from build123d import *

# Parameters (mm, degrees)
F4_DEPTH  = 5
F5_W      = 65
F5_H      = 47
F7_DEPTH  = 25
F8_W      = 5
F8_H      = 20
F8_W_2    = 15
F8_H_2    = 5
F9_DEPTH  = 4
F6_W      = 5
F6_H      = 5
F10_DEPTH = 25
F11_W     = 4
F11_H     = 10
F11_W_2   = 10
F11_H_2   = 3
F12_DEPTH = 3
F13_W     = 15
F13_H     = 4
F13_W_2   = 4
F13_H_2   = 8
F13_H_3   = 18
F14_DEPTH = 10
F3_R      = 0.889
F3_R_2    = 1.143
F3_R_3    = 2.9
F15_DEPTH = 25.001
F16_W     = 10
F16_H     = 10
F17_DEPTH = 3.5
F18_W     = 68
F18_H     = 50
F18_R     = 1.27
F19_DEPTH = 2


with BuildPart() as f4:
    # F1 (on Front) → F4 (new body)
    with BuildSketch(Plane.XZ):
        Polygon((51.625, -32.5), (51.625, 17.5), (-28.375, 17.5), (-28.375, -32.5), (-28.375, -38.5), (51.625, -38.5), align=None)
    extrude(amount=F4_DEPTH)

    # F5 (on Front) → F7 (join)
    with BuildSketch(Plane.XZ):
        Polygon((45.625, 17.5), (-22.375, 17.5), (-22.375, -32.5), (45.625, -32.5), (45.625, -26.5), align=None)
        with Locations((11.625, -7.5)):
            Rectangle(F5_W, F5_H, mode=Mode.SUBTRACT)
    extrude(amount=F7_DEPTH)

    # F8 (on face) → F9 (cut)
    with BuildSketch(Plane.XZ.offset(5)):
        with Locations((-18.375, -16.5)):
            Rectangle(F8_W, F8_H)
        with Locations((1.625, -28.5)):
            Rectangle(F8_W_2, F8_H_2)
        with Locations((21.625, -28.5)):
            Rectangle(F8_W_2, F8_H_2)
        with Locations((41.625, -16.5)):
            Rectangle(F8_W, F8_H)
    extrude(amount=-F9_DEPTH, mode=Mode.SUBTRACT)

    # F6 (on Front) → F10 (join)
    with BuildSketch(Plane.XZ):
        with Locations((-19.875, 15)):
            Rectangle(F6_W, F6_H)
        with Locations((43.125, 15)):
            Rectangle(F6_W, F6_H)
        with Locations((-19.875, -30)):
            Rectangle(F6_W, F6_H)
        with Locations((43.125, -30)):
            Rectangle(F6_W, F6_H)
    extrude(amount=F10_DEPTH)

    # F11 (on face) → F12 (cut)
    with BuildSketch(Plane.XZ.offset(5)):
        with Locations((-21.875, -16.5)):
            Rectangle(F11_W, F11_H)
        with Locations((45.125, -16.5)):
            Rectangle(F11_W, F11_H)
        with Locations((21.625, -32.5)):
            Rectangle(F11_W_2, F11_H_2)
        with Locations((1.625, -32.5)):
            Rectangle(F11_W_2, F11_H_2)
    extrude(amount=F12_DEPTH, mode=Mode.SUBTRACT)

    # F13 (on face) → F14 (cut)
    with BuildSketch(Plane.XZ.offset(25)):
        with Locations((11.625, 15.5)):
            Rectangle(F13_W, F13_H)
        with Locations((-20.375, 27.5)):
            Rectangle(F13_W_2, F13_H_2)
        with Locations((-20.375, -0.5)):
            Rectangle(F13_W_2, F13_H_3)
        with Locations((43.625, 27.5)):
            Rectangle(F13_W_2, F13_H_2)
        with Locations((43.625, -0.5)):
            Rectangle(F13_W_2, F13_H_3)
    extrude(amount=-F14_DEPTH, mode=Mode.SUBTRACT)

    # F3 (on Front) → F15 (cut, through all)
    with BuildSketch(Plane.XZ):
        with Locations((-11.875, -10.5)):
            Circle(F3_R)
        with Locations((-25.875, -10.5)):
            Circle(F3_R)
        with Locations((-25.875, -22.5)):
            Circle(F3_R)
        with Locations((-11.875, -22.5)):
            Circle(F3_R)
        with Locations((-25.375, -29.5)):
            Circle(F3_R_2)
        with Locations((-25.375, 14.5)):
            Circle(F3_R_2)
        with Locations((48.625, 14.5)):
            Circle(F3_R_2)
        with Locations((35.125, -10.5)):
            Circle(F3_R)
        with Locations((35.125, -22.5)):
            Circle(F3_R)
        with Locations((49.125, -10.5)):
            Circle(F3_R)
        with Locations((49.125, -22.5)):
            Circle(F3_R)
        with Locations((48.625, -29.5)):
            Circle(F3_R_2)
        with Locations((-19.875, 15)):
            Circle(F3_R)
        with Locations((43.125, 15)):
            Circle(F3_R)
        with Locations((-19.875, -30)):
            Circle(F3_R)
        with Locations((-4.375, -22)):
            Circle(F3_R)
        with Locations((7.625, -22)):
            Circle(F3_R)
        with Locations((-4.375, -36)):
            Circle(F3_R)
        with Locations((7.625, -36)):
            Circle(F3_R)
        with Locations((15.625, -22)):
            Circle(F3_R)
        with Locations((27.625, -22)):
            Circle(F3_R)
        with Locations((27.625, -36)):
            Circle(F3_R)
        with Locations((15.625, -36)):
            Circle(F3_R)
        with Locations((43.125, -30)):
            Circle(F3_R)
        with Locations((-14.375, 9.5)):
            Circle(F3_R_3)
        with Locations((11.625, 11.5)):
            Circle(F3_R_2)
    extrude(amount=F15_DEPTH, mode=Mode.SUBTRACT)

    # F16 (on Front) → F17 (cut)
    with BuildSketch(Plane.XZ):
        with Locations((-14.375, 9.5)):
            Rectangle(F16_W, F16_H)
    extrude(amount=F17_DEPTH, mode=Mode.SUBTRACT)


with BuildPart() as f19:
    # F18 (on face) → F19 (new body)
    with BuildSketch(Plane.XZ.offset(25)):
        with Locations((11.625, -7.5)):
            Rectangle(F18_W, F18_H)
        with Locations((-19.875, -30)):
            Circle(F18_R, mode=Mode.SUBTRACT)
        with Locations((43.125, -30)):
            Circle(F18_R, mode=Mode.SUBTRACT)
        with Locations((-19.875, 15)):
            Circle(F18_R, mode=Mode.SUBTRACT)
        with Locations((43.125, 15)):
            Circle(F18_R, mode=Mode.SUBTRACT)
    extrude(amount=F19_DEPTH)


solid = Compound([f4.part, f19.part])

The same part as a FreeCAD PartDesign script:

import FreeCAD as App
import Part
import Sketcher
from FreeCAD import Vector
Q = App.Units.Quantity

doc = App.newDocument("Part")
body = doc.addObject("PartDesign::Body", "Body")

# Sketch on XZ plane
sketch1 = body.newObject("Sketcher::SketchObject", "Sketch")
sketch1.AttachmentSupport = (doc.getObject("XZ_Plane"), [""])
sketch1.MapMode = "FlatFace"
sketch1.addGeometry(Part.LineSegment(Vector(52, 18, 0), Vector(-28, 18, 0)), False)
sketch1.addGeometry(Part.LineSegment(Vector(-28, 18, 0), Vector(-28, -38, 0)), False)
sketch1.addGeometry(Part.LineSegment(Vector(-28, -38, 0), Vector(52, -38, 0)), False)
sketch1.addGeometry(Part.LineSegment(Vector(52, -38, 0), Vector(52, 18, 0)), False)
sketch1.addConstraint(Sketcher.Constraint("Coincident", 0, 2, 1, 1))
sketch1.addConstraint(Sketcher.Constraint("Coincident", 1, 2, 2, 1))
sketch1.addConstraint(Sketcher.Constraint("Coincident", 2, 2, 3, 1))
sketch1.addConstraint(Sketcher.Constraint("Coincident", 3, 2, 0, 1))
sketch1.addConstraint(Sketcher.Constraint("Horizontal", 0))
sketch1.addConstraint(Sketcher.Constraint("Vertical", 1))
sketch1.addConstraint(Sketcher.Constraint("Horizontal", 2))
sketch1.addConstraint(Sketcher.Constraint("Vertical", 3))
sketch1.addConstraint(Sketcher.Constraint("DistanceX", 0, 2, 0, 1, Q("80 mm")))
sketch1.addConstraint(Sketcher.Constraint("DistanceY", 1, 2, 1, 1, Q("56 mm")))
sketch1.addConstraint(Sketcher.Constraint("DistanceY", -1, 1, 0, 2, Q("17.5 mm")))
sketch1.addConstraint(Sketcher.Constraint("DistanceX", 0, 2, -1, 1, Q("28.375 mm")))
pad1 = body.newObject("PartDesign::Pad", "Pad")
pad1.Profile = sketch1
pad1.Length = 5

# Sketch on XZ plane
sketch2 = body.newObject("Sketcher::SketchObject", "Sketch001")
sketch2.AttachmentSupport = (doc.getObject("XZ_Plane"), [""])
sketch2.MapMode = "FlatFace"
sketch2.addGeometry(Part.LineSegment(Vector(46, 18, 0), Vector(-22, 18, 0)), False)
sketch2.addGeometry(Part.LineSegment(Vector(-22, 18, 0), Vector(-22, -32, 0)), False)
sketch2.addGeometry(Part.LineSegment(Vector(-22, -32, 0), Vector(46, -32, 0)), False)
sketch2.addGeometry(Part.LineSegment(Vector(46, -32, 0), Vector(46, 18, 0)), False)
sketch2.addGeometry(Part.LineSegment(Vector(44, -31, 0), Vector(-21, -31, 0)), False)
sketch2.addGeometry(Part.LineSegment(Vector(-21, -31, 0), Vector(-21, 16, 0)), False)
sketch2.addGeometry(Part.LineSegment(Vector(-21, 16, 0), Vector(44, 16, 0)), False)
sketch2.addGeometry(Part.LineSegment(Vector(44, 16, 0), Vector(44, -31, 0)), False)
sketch2.addConstraint(Sketcher.Constraint("Coincident", 0, 2, 1, 1))
sketch2.addConstraint(Sketcher.Constraint("Coincident", 1, 2, 2, 1))
sketch2.addConstraint(Sketcher.Constraint("Coincident", 2, 2, 3, 1))
sketch2.addConstraint(Sketcher.Constraint("Coincident", 3, 2, 0, 1))
sketch2.addConstraint(Sketcher.Constraint("Coincident", 4, 2, 5, 1))
sketch2.addConstraint(Sketcher.Constraint("Coincident", 5, 2, 6, 1))
sketch2.addConstraint(Sketcher.Constraint("Coincident", 6, 2, 7, 1))
sketch2.addConstraint(Sketcher.Constraint("Coincident", 7, 2, 4, 1))
sketch2.addConstraint(Sketcher.Constraint("Horizontal", 0))
sketch2.addConstraint(Sketcher.Constraint("Vertical", 1))
sketch2.addConstraint(Sketcher.Constraint("Horizontal", 2))
sketch2.addConstraint(Sketcher.Constraint("Vertical", 3))
sketch2.addConstraint(Sketcher.Constraint("Horizontal", 4))
sketch2.addConstraint(Sketcher.Constraint("Vertical", 5))
sketch2.addConstraint(Sketcher.Constraint("Horizontal", 6))
sketch2.addConstraint(Sketcher.Constraint("Vertical", 7))
sketch2.addConstraint(Sketcher.Constraint("DistanceX", 0, 2, 0, 1, Q("68 mm")))
sketch2.addConstraint(Sketcher.Constraint("DistanceX", 4, 2, 4, 1, Q("65 mm")))
sketch2.addConstraint(Sketcher.Constraint("DistanceY", 1, 2, 1, 1, Q("50 mm")))
sketch2.addConstraint(Sketcher.Constraint("DistanceY", 5, 1, 5, 2, Q("47 mm")))
sketch2.addConstraint(Sketcher.Constraint("DistanceY", 4, 2, -1, 1, Q("31 mm")))
sketch2.addConstraint(Sketcher.Constraint("DistanceY", -1, 1, 0, 2, Q("17.5 mm")))
sketch2.addConstraint(Sketcher.Constraint("DistanceX", 1, 2, 4, 2, Q("1.5 mm")))
sketch2.addConstraint(Sketcher.Constraint("DistanceX", 0, 2, -1, 1, Q("22.375 mm")))
pad2 = body.newObject("PartDesign::Pad", "Pad001")
pad2.Profile = sketch2
pad2.Length = 25

# Sketch on XZ plane
sketch3 = body.newObject("Sketcher::SketchObject", "Sketch002")
sketch3.AttachmentSupport = (doc.getObject("XZ_Plane"), [""])
sketch3.MapMode = "FlatFace"
sketch3.AttachmentOffset = App.Placement(Vector(0, 0, 5), App.Rotation())
sketch3.addGeometry(Part.LineSegment(Vector(-21, -6, 0), Vector(-21, -26, 0)), False)
sketch3.addGeometry(Part.LineSegment(Vector(-21, -26, 0), Vector(-16, -26, 0)), False)
sketch3.addGeometry(Part.LineSegment(Vector(-16, -26, 0), Vector(-16, -6, 0)), False)
sketch3.addGeometry(Part.LineSegment(Vector(-16, -6, 0), Vector(-21, -6, 0)), False)
sketch3.addGeometry(Part.LineSegment(Vector(-6, -26, 0), Vector(-6, -31, 0)), False)
sketch3.addGeometry(Part.LineSegment(Vector(-6, -31, 0), Vector(9, -31, 0)), False)
sketch3.addGeometry(Part.LineSegment(Vector(9, -31, 0), Vector(9, -26, 0)), False)
sketch3.addGeometry(Part.LineSegment(Vector(9, -26, 0), Vector(-6, -26, 0)), False)
sketch3.addGeometry(Part.LineSegment(Vector(14, -26, 0), Vector(14, -31, 0)), False)
sketch3.addGeometry(Part.LineSegment(Vector(14, -31, 0), Vector(29, -31, 0)), False)
sketch3.addGeometry(Part.LineSegment(Vector(29, -31, 0), Vector(29, -26, 0)), False)
sketch3.addGeometry(Part.LineSegment(Vector(29, -26, 0), Vector(14, -26, 0)), False)
sketch3.addGeometry(Part.LineSegment(Vector(39, -6, 0), Vector(39, -26, 0)), False)
sketch3.addGeometry(Part.LineSegment(Vector(39, -26, 0), Vector(44, -26, 0)), False)
sketch3.addGeometry(Part.LineSegment(Vector(44, -26, 0), Vector(44, -6, 0)), False)
sketch3.addGeometry(Part.LineSegment(Vector(44, -6, 0), Vector(39, -6, 0)), False)
sketch3.addConstraint(Sketcher.Constraint("Coincident", 0, 2, 1, 1))
sketch3.addConstraint(Sketcher.Constraint("Coincident", 1, 2, 2, 1))
sketch3.addConstraint(Sketcher.Constraint("Coincident", 2, 2, 3, 1))
sketch3.addConstraint(Sketcher.Constraint("Coincident", 3, 2, 0, 1))
sketch3.addConstraint(Sketcher.Constraint("Coincident", 4, 2, 5, 1))
sketch3.addConstraint(Sketcher.Constraint("Coincident", 5, 2, 6, 1))
sketch3.addConstraint(Sketcher.Constraint("Coincident", 6, 2, 7, 1))
sketch3.addConstraint(Sketcher.Constraint("Coincident", 7, 2, 4, 1))
sketch3.addConstraint(Sketcher.Constraint("Coincident", 8, 2, 9, 1))
sketch3.addConstraint(Sketcher.Constraint("Coincident", 9, 2, 10, 1))
sketch3.addConstraint(Sketcher.Constraint("Coincident", 10, 2, 11, 1))
sketch3.addConstraint(Sketcher.Constraint("Coincident", 11, 2, 8, 1))
sketch3.addConstraint(Sketcher.Constraint("Coincident", 12, 2, 13, 1))
sketch3.addConstraint(Sketcher.Constraint("Coincident", 13, 2, 14, 1))
sketch3.addConstraint(Sketcher.Constraint("Coincident", 14, 2, 15, 1))
sketch3.addConstraint(Sketcher.Constraint("Coincident", 15, 2, 12, 1))
sketch3.addConstraint(Sketcher.Constraint("Vertical", 0))
sketch3.addConstraint(Sketcher.Constraint("Horizontal", 1))
sketch3.addConstraint(Sketcher.Constraint("Vertical", 2))
sketch3.addConstraint(Sketcher.Constraint("Horizontal", 3))
sketch3.addConstraint(Sketcher.Constraint("Vertical", 4))
sketch3.addConstraint(Sketcher.Constraint("Horizontal", 5))
sketch3.addConstraint(Sketcher.Constraint("Vertical", 6))
sketch3.addConstraint(Sketcher.Constraint("Horizontal", 7))
sketch3.addConstraint(Sketcher.Constraint("Vertical", 8))
sketch3.addConstraint(Sketcher.Constraint("Horizontal", 9))
sketch3.addConstraint(Sketcher.Constraint("Vertical", 10))
sketch3.addConstraint(Sketcher.Constraint("Horizontal", 11))
sketch3.addConstraint(Sketcher.Constraint("Vertical", 12))
sketch3.addConstraint(Sketcher.Constraint("Horizontal", 13))
sketch3.addConstraint(Sketcher.Constraint("Vertical", 14))
sketch3.addConstraint(Sketcher.Constraint("Horizontal", 15))
sketch3.addConstraint(Sketcher.Constraint("Horizontal", 5, 2, 8, 2))
sketch3.addConstraint(Sketcher.Constraint("Horizontal", 7, 2, 10, 2))
sketch3.addConstraint(Sketcher.Constraint("Horizontal", 1, 2, 12, 2))
sketch3.addConstraint(Sketcher.Constraint("Horizontal", 3, 2, 14, 2))
sketch3.addConstraint(Sketcher.Constraint("Equal", 7, 9))
sketch3.addConstraint(Sketcher.Constraint("Equal", 3, 13))
sketch3.addConstraint(Sketcher.Constraint("Equal", 15, 4))
sketch3.addConstraint(Sketcher.Constraint("DistanceX", 1, 1, 1, 2, Q("5 mm")))
sketch3.addConstraint(Sketcher.Constraint("DistanceX", 5, 1, 5, 2, Q("15 mm")))
sketch3.addConstraint(Sketcher.Constraint("DistanceY", 0, 2, 0, 1, Q("20 mm")))
sketch3.addConstraint(Sketcher.Constraint("DistanceY", 4, 2, -1, 1, Q("31 mm")))
sketch3.addConstraint(Sketcher.Constraint("DistanceX", 1, 2, 4, 2, Q("10 mm")))
sketch3.addConstraint(Sketcher.Constraint("DistanceX", 5, 2, 8, 2, Q("5 mm")))
sketch3.addConstraint(Sketcher.Constraint("DistanceX", 10, 2, 12, 2, Q("10 mm")))
sketch3.addConstraint(Sketcher.Constraint("DistanceY", 0, 2, -1, 1, Q("26.5 mm")))
sketch3.addConstraint(Sketcher.Constraint("DistanceX", 0, 2, -1, 1, Q("20.875 mm")))
pocket1 = body.newObject("PartDesign::Pocket", "Pocket")
pocket1.Profile = sketch3
pocket1.Length = 4

# Sketch on XZ plane
sketch4 = body.newObject("Sketcher::SketchObject", "Sketch003")
sketch4.AttachmentSupport = (doc.getObject("XZ_Plane"), [""])
sketch4.MapMode = "FlatFace"
sketch4.addGeometry(Part.LineSegment(Vector(-22, 18, 0), Vector(-22, 12, 0)), False)
sketch4.addGeometry(Part.LineSegment(Vector(-22, 12, 0), Vector(-17, 12, 0)), False)
sketch4.addGeometry(Part.LineSegment(Vector(-17, 12, 0), Vector(-17, 18, 0)), False)
sketch4.addGeometry(Part.LineSegment(Vector(-17, 18, 0), Vector(-22, 18, 0)), False)
sketch4.addGeometry(Part.LineSegment(Vector(41, 18, 0), Vector(41, 12, 0)), False)
sketch4.addGeometry(Part.LineSegment(Vector(41, 12, 0), Vector(46, 12, 0)), False)
sketch4.addGeometry(Part.LineSegment(Vector(46, 12, 0), Vector(46, 18, 0)), False)
sketch4.addGeometry(Part.LineSegment(Vector(46, 18, 0), Vector(41, 18, 0)), False)
sketch4.addGeometry(Part.LineSegment(Vector(-22, -28, 0), Vector(-22, -32, 0)), False)
sketch4.addGeometry(Part.LineSegment(Vector(-22, -32, 0), Vector(-17, -32, 0)), False)
sketch4.addGeometry(Part.LineSegment(Vector(-17, -32, 0), Vector(-17, -28, 0)), False)
sketch4.addGeometry(Part.LineSegment(Vector(-17, -28, 0), Vector(-22, -28, 0)), False)
sketch4.addGeometry(Part.LineSegment(Vector(41, -28, 0), Vector(41, -32, 0)), False)
sketch4.addGeometry(Part.LineSegment(Vector(41, -32, 0), Vector(46, -32, 0)), False)
sketch4.addGeometry(Part.LineSegment(Vector(46, -32, 0), Vector(46, -28, 0)), False)
sketch4.addGeometry(Part.LineSegment(Vector(46, -28, 0), Vector(41, -28, 0)), False)
sketch4.addConstraint(Sketcher.Constraint("Coincident", 0, 2, 1, 1))
sketch4.addConstraint(Sketcher.Constraint("Coincident", 1, 2, 2, 1))
sketch4.addConstraint(Sketcher.Constraint("Coincident", 2, 2, 3, 1))
sketch4.addConstraint(Sketcher.Constraint("Coincident", 3, 2, 0, 1))
sketch4.addConstraint(Sketcher.Constraint("Coincident", 4, 2, 5, 1))
sketch4.addConstraint(Sketcher.Constraint("Coincident", 5, 2, 6, 1))
sketch4.addConstraint(Sketcher.Constraint("Coincident", 6, 2, 7, 1))
sketch4.addConstraint(Sketcher.Constraint("Coincident", 7, 2, 4, 1))
sketch4.addConstraint(Sketcher.Constraint("Coincident", 8, 2, 9, 1))
sketch4.addConstraint(Sketcher.Constraint("Coincident", 9, 2, 10, 1))
sketch4.addConstraint(Sketcher.Constraint("Coincident", 10, 2, 11, 1))
sketch4.addConstraint(Sketcher.Constraint("Coincident", 11, 2, 8, 1))
sketch4.addConstraint(Sketcher.Constraint("Coincident", 12, 2, 13, 1))
sketch4.addConstraint(Sketcher.Constraint("Coincident", 13, 2, 14, 1))
sketch4.addConstraint(Sketcher.Constraint("Coincident", 14, 2, 15, 1))
sketch4.addConstraint(Sketcher.Constraint("Coincident", 15, 2, 12, 1))
sketch4.addConstraint(Sketcher.Constraint("Vertical", 0))
sketch4.addConstraint(Sketcher.Constraint("Horizontal", 1))
sketch4.addConstraint(Sketcher.Constraint("Vertical", 2))
sketch4.addConstraint(Sketcher.Constraint("Horizontal", 3))
sketch4.addConstraint(Sketcher.Constraint("Vertical", 4))
sketch4.addConstraint(Sketcher.Constraint("Horizontal", 5))
sketch4.addConstraint(Sketcher.Constraint("Vertical", 6))
sketch4.addConstraint(Sketcher.Constraint("Horizontal", 7))
sketch4.addConstraint(Sketcher.Constraint("Vertical", 8))
sketch4.addConstraint(Sketcher.Constraint("Horizontal", 9))
sketch4.addConstraint(Sketcher.Constraint("Vertical", 10))
sketch4.addConstraint(Sketcher.Constraint("Horizontal", 11))
sketch4.addConstraint(Sketcher.Constraint("Vertical", 12))
sketch4.addConstraint(Sketcher.Constraint("Horizontal", 13))
sketch4.addConstraint(Sketcher.Constraint("Vertical", 14))
sketch4.addConstraint(Sketcher.Constraint("Horizontal", 15))
sketch4.addConstraint(Sketcher.Constraint("Horizontal", 1, 2, 4, 2))
sketch4.addConstraint(Sketcher.Constraint("Horizontal", 3, 2, 6, 2))
sketch4.addConstraint(Sketcher.Constraint("Horizontal", 9, 2, 12, 2))
sketch4.addConstraint(Sketcher.Constraint("Horizontal", 11, 2, 14, 2))
sketch4.addConstraint(Sketcher.Constraint("Vertical", 3, 2, 8, 2))
sketch4.addConstraint(Sketcher.Constraint("Vertical", 2, 2, 9, 2))
sketch4.addConstraint(Sketcher.Constraint("Vertical", 7, 2, 12, 2))
sketch4.addConstraint(Sketcher.Constraint("Vertical", 6, 2, 13, 2))
sketch4.addConstraint(Sketcher.Constraint("Equal", 3, 5))
sketch4.addConstraint(Sketcher.Constraint("Equal", 15, 0))
sketch4.addConstraint(Sketcher.Constraint("Equal", 6, 8))
sketch4.addConstraint(Sketcher.Constraint("DistanceX", 1, 1, 1, 2, Q("5 mm")))
sketch4.addConstraint(Sketcher.Constraint("DistanceX", 1, 2, 4, 2, Q("58 mm")))
sketch4.addConstraint(Sketcher.Constraint("DistanceY", 8, 2, 0, 2, Q("45 mm")))
sketch4.addConstraint(Sketcher.Constraint("DistanceY", -1, 1, 0, 2, Q("12.5 mm")))
sketch4.addConstraint(Sketcher.Constraint("DistanceX", 0, 2, -1, 1, Q("22.375 mm")))
pad3 = body.newObject("PartDesign::Pad", "Pad002")
pad3.Profile = sketch4
pad3.Length = 25

# Sketch on XZ plane
sketch5 = body.newObject("Sketcher::SketchObject", "Sketch004")
sketch5.AttachmentSupport = (doc.getObject("XZ_Plane"), [""])
sketch5.MapMode = "FlatFace"
sketch5.AttachmentOffset = App.Placement(Vector(0, 0, 5), App.Rotation())
sketch5.addGeometry(Part.LineSegment(Vector(-23.9, -11.5, 0), Vector(-23.9, -21.5, 0)), False)
sketch5.addGeometry(Part.LineSegment(Vector(-23.9, -21.5, 0), Vector(-19.9, -21.5, 0)), False)
sketch5.addGeometry(Part.LineSegment(Vector(-19.9, -21.5, 0), Vector(-19.9, -11.5, 0)), False)
sketch5.addGeometry(Part.LineSegment(Vector(-19.9, -11.5, 0), Vector(-23.9, -11.5, 0)), False)
sketch5.addGeometry(Part.LineSegment(Vector(43.1, -11.5, 0), Vector(43.1, -21.5, 0)), False)
sketch5.addGeometry(Part.LineSegment(Vector(43.1, -21.5, 0), Vector(47.1, -21.5, 0)), False)
sketch5.addGeometry(Part.LineSegment(Vector(47.1, -21.5, 0), Vector(47.1, -11.5, 0)), False)
sketch5.addGeometry(Part.LineSegment(Vector(47.1, -11.5, 0), Vector(43.1, -11.5, 0)), False)
sketch5.addGeometry(Part.LineSegment(Vector(16.6, -31, 0), Vector(16.6, -34, 0)), False)
sketch5.addGeometry(Part.LineSegment(Vector(16.6, -34, 0), Vector(26.6, -34, 0)), False)
sketch5.addGeometry(Part.LineSegment(Vector(26.6, -34, 0), Vector(26.6, -31, 0)), False)
sketch5.addGeometry(Part.LineSegment(Vector(26.6, -31, 0), Vector(16.6, -31, 0)), False)
sketch5.addGeometry(Part.LineSegment(Vector(-3.4, -31, 0), Vector(-3.4, -34, 0)), False)
sketch5.addGeometry(Part.LineSegment(Vector(-3.4, -34, 0), Vector(6.6, -34, 0)), False)
sketch5.addGeometry(Part.LineSegment(Vector(6.6, -34, 0), Vector(6.6, -31, 0)), False)
sketch5.addGeometry(Part.LineSegment(Vector(6.6, -31, 0), Vector(-3.4, -31, 0)), False)
sketch5.addConstraint(Sketcher.Constraint("Coincident", 0, 2, 1, 1))
sketch5.addConstraint(Sketcher.Constraint("Coincident", 1, 2, 2, 1))
sketch5.addConstraint(Sketcher.Constraint("Coincident", 2, 2, 3, 1))
sketch5.addConstraint(Sketcher.Constraint("Coincident", 3, 2, 0, 1))
sketch5.addConstraint(Sketcher.Constraint("Coincident", 4, 2, 5, 1))
sketch5.addConstraint(Sketcher.Constraint("Coincident", 5, 2, 6, 1))
sketch5.addConstraint(Sketcher.Constraint("Coincident", 6, 2, 7, 1))
sketch5.addConstraint(Sketcher.Constraint("Coincident", 7, 2, 4, 1))
sketch5.addConstraint(Sketcher.Constraint("Coincident", 8, 2, 9, 1))
sketch5.addConstraint(Sketcher.Constraint("Coincident", 9, 2, 10, 1))
sketch5.addConstraint(Sketcher.Constraint("Coincident", 10, 2, 11, 1))
sketch5.addConstraint(Sketcher.Constraint("Coincident", 11, 2, 8, 1))
sketch5.addConstraint(Sketcher.Constraint("Coincident", 12, 2, 13, 1))
sketch5.addConstraint(Sketcher.Constraint("Coincident", 13, 2, 14, 1))
sketch5.addConstraint(Sketcher.Constraint("Coincident", 14, 2, 15, 1))
sketch5.addConstraint(Sketcher.Constraint("Coincident", 15, 2, 12, 1))
sketch5.addConstraint(Sketcher.Constraint("Vertical", 0))
sketch5.addConstraint(Sketcher.Constraint("Horizontal", 1))
sketch5.addConstraint(Sketcher.Constraint("Vertical", 2))
sketch5.addConstraint(Sketcher.Constraint("Horizontal", 3))
sketch5.addConstraint(Sketcher.Constraint("Vertical", 4))
sketch5.addConstraint(Sketcher.Constraint("Horizontal", 5))
sketch5.addConstraint(Sketcher.Constraint("Vertical", 6))
sketch5.addConstraint(Sketcher.Constraint("Horizontal", 7))
sketch5.addConstraint(Sketcher.Constraint("Vertical", 8))
sketch5.addConstraint(Sketcher.Constraint("Horizontal", 9))
sketch5.addConstraint(Sketcher.Constraint("Vertical", 10))
sketch5.addConstraint(Sketcher.Constraint("Horizontal", 11))
sketch5.addConstraint(Sketcher.Constraint("Vertical", 12))
sketch5.addConstraint(Sketcher.Constraint("Horizontal", 13))
sketch5.addConstraint(Sketcher.Constraint("Vertical", 14))
sketch5.addConstraint(Sketcher.Constraint("Horizontal", 15))
sketch5.addConstraint(Sketcher.Constraint("Horizontal", 1, 2, 4, 2))
sketch5.addConstraint(Sketcher.Constraint("Horizontal", 3, 2, 6, 2))
sketch5.addConstraint(Sketcher.Constraint("Horizontal", 9, 2, 12, 2))
sketch5.addConstraint(Sketcher.Constraint("Horizontal", 11, 2, 14, 2))
sketch5.addConstraint(Sketcher.Constraint("Equal", 3, 5))
sketch5.addConstraint(Sketcher.Constraint("Equal", 11, 13))
sketch5.addConstraint(Sketcher.Constraint("Equal", 15, 0))
sketch5.addConstraint(Sketcher.Constraint("DistanceX", 1, 1, 1, 2, Q("4 mm")))
sketch5.addConstraint(Sketcher.Constraint("DistanceX", 9, 1, 9, 2, Q("10 mm")))
sketch5.addConstraint(Sketcher.Constraint("DistanceY", 8, 2, 8, 1, Q("3 mm")))
sketch5.addConstraint(Sketcher.Constraint("DistanceY", 8, 2, -1, 1, Q("34 mm")))
sketch5.addConstraint(Sketcher.Constraint("DistanceX", 1, 2, 4, 2, Q("63 mm")))
sketch5.addConstraint(Sketcher.Constraint("DistanceX", 12, 2, 8, 2, Q("20 mm")))
sketch5.addConstraint(Sketcher.Constraint("DistanceY", 0, 2, -1, 1, Q("21.5 mm")))
sketch5.addConstraint(Sketcher.Constraint("DistanceX", 8, 2, 4, 2, Q("26.5 mm")))
sketch5.addConstraint(Sketcher.Constraint("DistanceX", 0, 2, -1, 1, Q("23.875 mm")))
pocket2 = body.newObject("PartDesign::Pocket", "Pocket001")
pocket2.Profile = sketch5
pocket2.Length = 3
pocket2.Reversed = True

# Sketch on XZ plane
sketch6 = body.newObject("Sketcher::SketchObject", "Sketch005")
sketch6.AttachmentSupport = (doc.getObject("XZ_Plane"), [""])
sketch6.MapMode = "FlatFace"
sketch6.AttachmentOffset = App.Placement(Vector(0, 0, 25), App.Rotation())
sketch6.addGeometry(Part.LineSegment(Vector(4.1, 17.5, 0), Vector(4.1, 13.5, 0)), False)
sketch6.addGeometry(Part.LineSegment(Vector(4.1, 13.5, 0), Vector(19.1, 13.5, 0)), False)
sketch6.addGeometry(Part.LineSegment(Vector(19.1, 13.5, 0), Vector(19.1, 17.5, 0)), False)
sketch6.addGeometry(Part.LineSegment(Vector(19.1, 17.5, 0), Vector(4.1, 17.5, 0)), False)
sketch6.addGeometry(Part.LineSegment(Vector(-22.4, 31.5, 0), Vector(-22.4, 23.5, 0)), False)
sketch6.addGeometry(Part.LineSegment(Vector(-22.4, 23.5, 0), Vector(-18.4, 23.5, 0)), False)
sketch6.addGeometry(Part.LineSegment(Vector(-18.4, 23.5, 0), Vector(-18.4, 31.5, 0)), False)
sketch6.addGeometry(Part.LineSegment(Vector(-18.4, 31.5, 0), Vector(-22.4, 31.5, 0)), False)
sketch6.addGeometry(Part.LineSegment(Vector(-22.4, 8.5, 0), Vector(-22.4, -9.5, 0)), False)
sketch6.addGeometry(Part.LineSegment(Vector(-22.4, -9.5, 0), Vector(-18.4, -9.5, 0)), False)
sketch6.addGeometry(Part.LineSegment(Vector(-18.4, -9.5, 0), Vector(-18.4, 8.5, 0)), False)
sketch6.addGeometry(Part.LineSegment(Vector(-18.4, 8.5, 0), Vector(-22.4, 8.5, 0)), False)
sketch6.addGeometry(Part.LineSegment(Vector(41.6, 31.5, 0), Vector(41.6, 23.5, 0)), False)
sketch6.addGeometry(Part.LineSegment(Vector(41.6, 23.5, 0), Vector(45.6, 23.5, 0)), False)
sketch6.addGeometry(Part.LineSegment(Vector(45.6, 23.5, 0), Vector(45.6, 31.5, 0)), False)
sketch6.addGeometry(Part.LineSegment(Vector(45.6, 31.5, 0), Vector(41.6, 31.5, 0)), False)
sketch6.addGeometry(Part.LineSegment(Vector(41.6, 8.5, 0), Vector(41.6, -9.5, 0)), False)
sketch6.addGeometry(Part.LineSegment(Vector(41.6, -9.5, 0), Vector(45.6, -9.5, 0)), False)
sketch6.addGeometry(Part.LineSegment(Vector(45.6, -9.5, 0), Vector(45.6, 8.5, 0)), False)
sketch6.addGeometry(Part.LineSegment(Vector(45.6, 8.5, 0), Vector(41.6, 8.5, 0)), False)
sketch6.addConstraint(Sketcher.Constraint("Coincident", 0, 2, 1, 1))
sketch6.addConstraint(Sketcher.Constraint("Coincident", 1, 2, 2, 1))
sketch6.addConstraint(Sketcher.Constraint("Coincident", 2, 2, 3, 1))
sketch6.addConstraint(Sketcher.Constraint("Coincident", 3, 2, 0, 1))
sketch6.addConstraint(Sketcher.Constraint("Coincident", 4, 2, 5, 1))
sketch6.addConstraint(Sketcher.Constraint("Coincident", 5, 2, 6, 1))
sketch6.addConstraint(Sketcher.Constraint("Coincident", 6, 2, 7, 1))
sketch6.addConstraint(Sketcher.Constraint("Coincident", 7, 2, 4, 1))
sketch6.addConstraint(Sketcher.Constraint("Coincident", 8, 2, 9, 1))
sketch6.addConstraint(Sketcher.Constraint("Coincident", 9, 2, 10, 1))
sketch6.addConstraint(Sketcher.Constraint("Coincident", 10, 2, 11, 1))
sketch6.addConstraint(Sketcher.Constraint("Coincident", 11, 2, 8, 1))
sketch6.addConstraint(Sketcher.Constraint("Coincident", 12, 2, 13, 1))
sketch6.addConstraint(Sketcher.Constraint("Coincident", 13, 2, 14, 1))
sketch6.addConstraint(Sketcher.Constraint("Coincident", 14, 2, 15, 1))
sketch6.addConstraint(Sketcher.Constraint("Coincident", 15, 2, 12, 1))
sketch6.addConstraint(Sketcher.Constraint("Coincident", 16, 2, 17, 1))
sketch6.addConstraint(Sketcher.Constraint("Coincident", 17, 2, 18, 1))
sketch6.addConstraint(Sketcher.Constraint("Coincident", 18, 2, 19, 1))
sketch6.addConstraint(Sketcher.Constraint("Coincident", 19, 2, 16, 1))
sketch6.addConstraint(Sketcher.Constraint("Vertical", 0))
sketch6.addConstraint(Sketcher.Constraint("Horizontal", 1))
sketch6.addConstraint(Sketcher.Constraint("Vertical", 2))
sketch6.addConstraint(Sketcher.Constraint("Horizontal", 3))
sketch6.addConstraint(Sketcher.Constraint("Vertical", 4))
sketch6.addConstraint(Sketcher.Constraint("Horizontal", 5))
sketch6.addConstraint(Sketcher.Constraint("Vertical", 6))
sketch6.addConstraint(Sketcher.Constraint("Horizontal", 7))
sketch6.addConstraint(Sketcher.Constraint("Vertical", 8))
sketch6.addConstraint(Sketcher.Constraint("Horizontal", 9))
sketch6.addConstraint(Sketcher.Constraint("Vertical", 10))
sketch6.addConstraint(Sketcher.Constraint("Horizontal", 11))
sketch6.addConstraint(Sketcher.Constraint("Vertical", 12))
sketch6.addConstraint(Sketcher.Constraint("Horizontal", 13))
sketch6.addConstraint(Sketcher.Constraint("Vertical", 14))
sketch6.addConstraint(Sketcher.Constraint("Horizontal", 15))
sketch6.addConstraint(Sketcher.Constraint("Vertical", 16))
sketch6.addConstraint(Sketcher.Constraint("Horizontal", 17))
sketch6.addConstraint(Sketcher.Constraint("Vertical", 18))
sketch6.addConstraint(Sketcher.Constraint("Horizontal", 19))
sketch6.addConstraint(Sketcher.Constraint("Horizontal", 5, 2, 12, 2))
sketch6.addConstraint(Sketcher.Constraint("Horizontal", 7, 2, 14, 2))
sketch6.addConstraint(Sketcher.Constraint("Horizontal", 9, 2, 16, 2))
sketch6.addConstraint(Sketcher.Constraint("Horizontal", 11, 2, 18, 2))
sketch6.addConstraint(Sketcher.Constraint("Vertical", 7, 2, 8, 2))
sketch6.addConstraint(Sketcher.Constraint("Vertical", 6, 2, 9, 2))
sketch6.addConstraint(Sketcher.Constraint("Vertical", 15, 2, 16, 2))
sketch6.addConstraint(Sketcher.Constraint("Vertical", 14, 2, 17, 2))
sketch6.addConstraint(Sketcher.Constraint("Equal", 11, 13))
sketch6.addConstraint(Sketcher.Constraint("Equal", 19, 0))
sketch6.addConstraint(Sketcher.Constraint("DistanceX", 1, 1, 1, 2, Q("15 mm")))
sketch6.addConstraint(Sketcher.Constraint("DistanceX", 5, 1, 5, 2, Q("4 mm")))
sketch6.addConstraint(Sketcher.Constraint("DistanceY", 4, 2, 4, 1, Q("8 mm")))
sketch6.addConstraint(Sketcher.Constraint("DistanceY", 8, 2, 8, 1, Q("18 mm")))
sketch6.addConstraint(Sketcher.Constraint("DistanceY", 3, 2, 4, 2, Q("6 mm")))
sketch6.addConstraint(Sketcher.Constraint("DistanceY", 8, 2, 4, 2, Q("33 mm")))
sketch6.addConstraint(Sketcher.Constraint("DistanceX", 5, 2, 12, 2, Q("60 mm")))
sketch6.addConstraint(Sketcher.Constraint("DistanceY", -1, 1, 0, 2, Q("13.5 mm")))
sketch6.addConstraint(Sketcher.Constraint("DistanceX", 4, 2, 3, 2, Q("26.5 mm")))
sketch6.addConstraint(Sketcher.Constraint("DistanceX", -1, 1, 0, 2, Q("4.125 mm")))
pocket3 = body.newObject("PartDesign::Pocket", "Pocket002")
pocket3.Profile = sketch6
pocket3.Length = 10

# Sketch on XZ plane
sketch7 = body.newObject("Sketcher::SketchObject", "Sketch006")
sketch7.AttachmentSupport = (doc.getObject("XZ_Plane"), [""])
sketch7.MapMode = "FlatFace"
sketch7.addGeometry(Part.Circle(Vector(-11.9, -10.5, 0), Vector(0, 0, 1), 0.9), False)
sketch7.addGeometry(Part.Circle(Vector(-25.9, -10.5, 0), Vector(0, 0, 1), 0.9), False)
sketch7.addGeometry(Part.Circle(Vector(-25.9, -22.5, 0), Vector(0, 0, 1), 0.9), False)
sketch7.addGeometry(Part.Circle(Vector(-11.9, -22.5, 0), Vector(0, 0, 1), 0.9), False)
sketch7.addGeometry(Part.Circle(Vector(-25.4, -29.5, 0), Vector(0, 0, 1), 1.1), False)
sketch7.addGeometry(Part.Circle(Vector(-25.4, 14.5, 0), Vector(0, 0, 1), 1.1), False)
sketch7.addGeometry(Part.Circle(Vector(48.6, 14.5, 0), Vector(0, 0, 1), 1.1), False)
sketch7.addGeometry(Part.Circle(Vector(35.1, -10.5, 0), Vector(0, 0, 1), 0.9), False)
sketch7.addGeometry(Part.Circle(Vector(35.1, -22.5, 0), Vector(0, 0, 1), 0.9), False)
sketch7.addGeometry(Part.Circle(Vector(49.1, -10.5, 0), Vector(0, 0, 1), 0.9), False)
sketch7.addGeometry(Part.Circle(Vector(49.1, -22.5, 0), Vector(0, 0, 1), 0.9), False)
sketch7.addGeometry(Part.Circle(Vector(48.6, -29.5, 0), Vector(0, 0, 1), 1.1), False)
sketch7.addGeometry(Part.Circle(Vector(-19.9, 15, 0), Vector(0, 0, 1), 0.9), False)
sketch7.addGeometry(Part.Circle(Vector(43.1, 15, 0), Vector(0, 0, 1), 0.9), False)
sketch7.addGeometry(Part.Circle(Vector(-19.9, -30, 0), Vector(0, 0, 1), 0.9), False)
sketch7.addGeometry(Part.Circle(Vector(-4.4, -22, 0), Vector(0, 0, 1), 0.9), False)
sketch7.addGeometry(Part.Circle(Vector(7.6, -22, 0), Vector(0, 0, 1), 0.9), False)
sketch7.addGeometry(Part.Circle(Vector(-4.4, -36, 0), Vector(0, 0, 1), 0.9), False)
sketch7.addGeometry(Part.Circle(Vector(7.6, -36, 0), Vector(0, 0, 1), 0.9), False)
sketch7.addGeometry(Part.Circle(Vector(15.6, -22, 0), Vector(0, 0, 1), 0.9), False)
sketch7.addGeometry(Part.Circle(Vector(27.6, -22, 0), Vector(0, 0, 1), 0.9), False)
sketch7.addGeometry(Part.Circle(Vector(27.6, -36, 0), Vector(0, 0, 1), 0.9), False)
sketch7.addGeometry(Part.Circle(Vector(15.6, -36, 0), Vector(0, 0, 1), 0.9), False)
sketch7.addGeometry(Part.Circle(Vector(43.1, -30, 0), Vector(0, 0, 1), 0.9), False)
sketch7.addGeometry(Part.Circle(Vector(-14.4, 9.5, 0), Vector(0, 0, 1), 2.9), False)
sketch7.addGeometry(Part.Circle(Vector(11.6, 11.5, 0), Vector(0, 0, 1), 1.1), False)
sketch7.addConstraint(Sketcher.Constraint("Equal", 0, 1))
sketch7.addConstraint(Sketcher.Constraint("Equal", 1, 2))
sketch7.addConstraint(Sketcher.Constraint("Equal", 2, 3))
sketch7.addConstraint(Sketcher.Constraint("Equal", 4, 5))
sketch7.addConstraint(Sketcher.Constraint("Equal", 5, 6))
sketch7.addConstraint(Sketcher.Constraint("Equal", 3, 7))
sketch7.addConstraint(Sketcher.Constraint("Equal", 7, 8))
sketch7.addConstraint(Sketcher.Constraint("Equal", 8, 9))
sketch7.addConstraint(Sketcher.Constraint("Equal", 9, 10))
sketch7.addConstraint(Sketcher.Constraint("Equal", 6, 11))
sketch7.addConstraint(Sketcher.Constraint("Equal", 10, 12))
sketch7.addConstraint(Sketcher.Constraint("Equal", 12, 13))
sketch7.addConstraint(Sketcher.Constraint("Equal", 13, 14))
sketch7.addConstraint(Sketcher.Constraint("Equal", 14, 15))
sketch7.addConstraint(Sketcher.Constraint("Equal", 15, 16))
sketch7.addConstraint(Sketcher.Constraint("Equal", 16, 17))
sketch7.addConstraint(Sketcher.Constraint("Equal", 17, 18))
sketch7.addConstraint(Sketcher.Constraint("Equal", 18, 19))
sketch7.addConstraint(Sketcher.Constraint("Equal", 19, 20))
sketch7.addConstraint(Sketcher.Constraint("Equal", 20, 21))
sketch7.addConstraint(Sketcher.Constraint("Equal", 21, 22))
sketch7.addConstraint(Sketcher.Constraint("Equal", 22, 23))
sketch7.addConstraint(Sketcher.Constraint("Equal", 11, 25))
sketch7.addConstraint(Sketcher.Constraint("Horizontal", 0, 3, 1, 3))
sketch7.addConstraint(Sketcher.Constraint("Horizontal", 2, 3, 3, 3))
sketch7.addConstraint(Sketcher.Constraint("Horizontal", 5, 3, 6, 3))
sketch7.addConstraint(Sketcher.Constraint("Horizontal", 1, 3, 7, 3))
sketch7.addConstraint(Sketcher.Constraint("Horizontal", 3, 3, 8, 3))
sketch7.addConstraint(Sketcher.Constraint("Horizontal", 7, 3, 9, 3))
sketch7.addConstraint(Sketcher.Constraint("Horizontal", 8, 3, 10, 3))
sketch7.addConstraint(Sketcher.Constraint("Horizontal", 4, 3, 11, 3))
sketch7.addConstraint(Sketcher.Constraint("Horizontal", 12, 3, 13, 3))
sketch7.addConstraint(Sketcher.Constraint("Horizontal", 15, 3, 16, 3))
sketch7.addConstraint(Sketcher.Constraint("Horizontal", 17, 3, 18, 3))
sketch7.addConstraint(Sketcher.Constraint("Horizontal", 16, 3, 19, 3))
sketch7.addConstraint(Sketcher.Constraint("Horizontal", 19, 3, 20, 3))
sketch7.addConstraint(Sketcher.Constraint("Horizontal", 18, 3, 21, 3))
sketch7.addConstraint(Sketcher.Constraint("Horizontal", 21, 3, 22, 3))
sketch7.addConstraint(Sketcher.Constraint("Horizontal", 14, 3, 23, 3))
sketch7.addConstraint(Sketcher.Constraint("Vertical", 1, 3, 2, 3))
sketch7.addConstraint(Sketcher.Constraint("Vertical", 0, 3, 3, 3))
sketch7.addConstraint(Sketcher.Constraint("Vertical", 4, 3, 5, 3))
sketch7.addConstraint(Sketcher.Constraint("Vertical", 7, 3, 8, 3))
sketch7.addConstraint(Sketcher.Constraint("Vertical", 9, 3, 10, 3))
sketch7.addConstraint(Sketcher.Constraint("Vertical", 6, 3, 11, 3))
sketch7.addConstraint(Sketcher.Constraint("Vertical", 12, 3, 14, 3))
sketch7.addConstraint(Sketcher.Constraint("Vertical", 15, 3, 17, 3))
sketch7.addConstraint(Sketcher.Constraint("Vertical", 16, 3, 18, 3))
sketch7.addConstraint(Sketcher.Constraint("Vertical", 20, 3, 21, 3))
sketch7.addConstraint(Sketcher.Constraint("Vertical", 19, 3, 22, 3))
sketch7.addConstraint(Sketcher.Constraint("Vertical", 13, 3, 23, 3))
sketch7.addConstraint(Sketcher.Constraint("Diameter", 24, Q("5.8 mm")))
sketch7.addConstraint(Sketcher.Constraint("Diameter", 0, Q("1.778 mm")))
sketch7.addConstraint(Sketcher.Constraint("Diameter", 4, Q("2.286 mm")))
sketch7.addConstraint(Sketcher.Constraint("DistanceY", -1, 1, 12, 3, Q("15 mm")))
sketch7.addConstraint(Sketcher.Constraint("DistanceY", 14, 3, -1, 1, Q("30 mm")))
sketch7.addConstraint(Sketcher.Constraint("DistanceY", 15, 3, -1, 1, Q("22 mm")))
sketch7.addConstraint(Sketcher.Constraint("DistanceY", 17, 3, -1, 1, Q("36 mm")))
sketch7.addConstraint(Sketcher.Constraint("DistanceX", 1, 3, 0, 3, Q("14 mm")))
sketch7.addConstraint(Sketcher.Constraint("DistanceY", 2, 3, 1, 3, Q("12 mm")))
sketch7.addConstraint(Sketcher.Constraint("DistanceY", 4, 3, 2, 3, Q("7 mm")))
sketch7.addConstraint(Sketcher.Constraint("DistanceY", 1, 3, 5, 3, Q("25 mm")))
sketch7.addConstraint(Sketcher.Constraint("DistanceX", 5, 3, 6, 3, Q("74 mm")))
sketch7.addConstraint(Sketcher.Constraint("DistanceX", 0, 3, 7, 3, Q("47 mm")))
sketch7.addConstraint(Sketcher.Constraint("DistanceX", 7, 3, 9, 3, Q("14 mm")))
sketch7.addConstraint(Sketcher.Constraint("DistanceX", 1, 3, 12, 3, Q("6 mm")))
sketch7.addConstraint(Sketcher.Constraint("DistanceX", 13, 3, 9, 3, Q("6 mm")))
sketch7.addConstraint(Sketcher.Constraint("DistanceX", 4, 3, 15, 3, Q("21 mm")))
sketch7.addConstraint(Sketcher.Constraint("DistanceX", 15, 3, 16, 3, Q("12 mm")))
sketch7.addConstraint(Sketcher.Constraint("DistanceX", 16, 3, 19, 3, Q("8 mm")))
sketch7.addConstraint(Sketcher.Constraint("DistanceX", 19, 3, 20, 3, Q("12 mm")))
sketch7.addConstraint(Sketcher.Constraint("DistanceX", 5, 3, 24, 3, Q("11 mm")))
sketch7.addConstraint(Sketcher.Constraint("DistanceY", 24, 3, 5, 3, Q("5 mm")))
sketch7.addConstraint(Sketcher.Constraint("DistanceX", 24, 3, 25, 3, Q("26 mm")))
sketch7.addConstraint(Sketcher.Constraint("DistanceY", 24, 3, 25, 3, Q("2 mm")))
sketch7.addConstraint(Sketcher.Constraint("DistanceY", 0, 3, -1, 1, Q("10.5 mm")))
sketch7.addConstraint(Sketcher.Constraint("DistanceX", 2, 3, 4, 3, Q("0.5 mm")))
sketch7.addConstraint(Sketcher.Constraint("DistanceX", 0, 3, -1, 1, Q("11.875 mm")))
pocket4 = body.newObject("PartDesign::Pocket", "Pocket003")
pocket4.Profile = sketch7
pocket4.Type = "ThroughAll"
pocket4.Reversed = True

# Sketch on XZ plane
sketch8 = body.newObject("Sketcher::SketchObject", "Sketch007")
sketch8.AttachmentSupport = (doc.getObject("XZ_Plane"), [""])
sketch8.MapMode = "FlatFace"
sketch8.addGeometry(Part.LineSegment(Vector(-19, 14, 0), Vector(-19, 4, 0)), False)
sketch8.addGeometry(Part.LineSegment(Vector(-19, 4, 0), Vector(-9, 4, 0)), False)
sketch8.addGeometry(Part.LineSegment(Vector(-9, 4, 0), Vector(-9, 14, 0)), False)
sketch8.addGeometry(Part.LineSegment(Vector(-9, 14, 0), Vector(-19, 14, 0)), False)
sketch8.addConstraint(Sketcher.Constraint("Coincident", 0, 2, 1, 1))
sketch8.addConstraint(Sketcher.Constraint("Coincident", 1, 2, 2, 1))
sketch8.addConstraint(Sketcher.Constraint("Coincident", 2, 2, 3, 1))
sketch8.addConstraint(Sketcher.Constraint("Coincident", 3, 2, 0, 1))
sketch8.addConstraint(Sketcher.Constraint("Vertical", 0))
sketch8.addConstraint(Sketcher.Constraint("Horizontal", 1))
sketch8.addConstraint(Sketcher.Constraint("Vertical", 2))
sketch8.addConstraint(Sketcher.Constraint("Horizontal", 3))
sketch8.addConstraint(Sketcher.Constraint("Equal", 3, 0))
sketch8.addConstraint(Sketcher.Constraint("DistanceX", 1, 1, 1, 2, Q("10 mm")))
sketch8.addConstraint(Sketcher.Constraint("DistanceY", -1, 1, 0, 2, Q("4.5 mm")))
sketch8.addConstraint(Sketcher.Constraint("DistanceX", 0, 2, -1, 1, Q("19.375 mm")))
pocket5 = body.newObject("PartDesign::Pocket", "Pocket004")
pocket5.Profile = sketch8
pocket5.Length = 3.5
pocket5.Reversed = True
body2 = doc.addObject("PartDesign::Body", "Body001")

# Sketch on XZ plane
sketch9 = body2.newObject("Sketcher::SketchObject", "Sketch008")
sketch9.AttachmentSupport = (doc.getObject("XZ_Plane001"), [""])
sketch9.MapMode = "FlatFace"
sketch9.AttachmentOffset = App.Placement(Vector(0, 0, 25), App.Rotation())
sketch9.addGeometry(Part.LineSegment(Vector(-22.4, 17.5, 0), Vector(-22.4, -32.5, 0)), False)
sketch9.addGeometry(Part.LineSegment(Vector(-22.4, -32.5, 0), Vector(45.6, -32.5, 0)), False)
sketch9.addGeometry(Part.LineSegment(Vector(45.6, -32.5, 0), Vector(45.6, 17.5, 0)), False)
sketch9.addGeometry(Part.LineSegment(Vector(45.6, 17.5, 0), Vector(-22.4, 17.5, 0)), False)
sketch9.addGeometry(Part.Circle(Vector(-19.9, -30, 0), Vector(0, 0, 1), 1.3), False)
sketch9.addGeometry(Part.Circle(Vector(43.1, -30, 0), Vector(0, 0, 1), 1.3), False)
sketch9.addGeometry(Part.Circle(Vector(-19.9, 15, 0), Vector(0, 0, 1), 1.3), False)
sketch9.addGeometry(Part.Circle(Vector(43.1, 15, 0), Vector(0, 0, 1), 1.3), False)
sketch9.addConstraint(Sketcher.Constraint("Coincident", 0, 2, 1, 1))
sketch9.addConstraint(Sketcher.Constraint("Coincident", 1, 2, 2, 1))
sketch9.addConstraint(Sketcher.Constraint("Coincident", 2, 2, 3, 1))
sketch9.addConstraint(Sketcher.Constraint("Coincident", 3, 2, 0, 1))
sketch9.addConstraint(Sketcher.Constraint("Vertical", 0))
sketch9.addConstraint(Sketcher.Constraint("Horizontal", 1))
sketch9.addConstraint(Sketcher.Constraint("Vertical", 2))
sketch9.addConstraint(Sketcher.Constraint("Horizontal", 3))
sketch9.addConstraint(Sketcher.Constraint("Equal", 4, 5))
sketch9.addConstraint(Sketcher.Constraint("Equal", 5, 6))
sketch9.addConstraint(Sketcher.Constraint("Equal", 6, 7))
sketch9.addConstraint(Sketcher.Constraint("Horizontal", 4, 3, 5, 3))
sketch9.addConstraint(Sketcher.Constraint("Horizontal", 6, 3, 7, 3))
sketch9.addConstraint(Sketcher.Constraint("Vertical", 4, 3, 6, 3))
sketch9.addConstraint(Sketcher.Constraint("Vertical", 5, 3, 7, 3))
sketch9.addConstraint(Sketcher.Constraint("Diameter", 4, Q("2.54 mm")))
sketch9.addConstraint(Sketcher.Constraint("DistanceX", 1, 1, 1, 2, Q("68 mm")))
sketch9.addConstraint(Sketcher.Constraint("DistanceY", 0, 2, 0, 1, Q("50 mm")))
sketch9.addConstraint(Sketcher.Constraint("DistanceY", 4, 3, -1, 1, Q("30 mm")))
sketch9.addConstraint(Sketcher.Constraint("DistanceY", -1, 1, 6, 3, Q("15 mm")))
sketch9.addConstraint(Sketcher.Constraint("DistanceX", 4, 3, 5, 3, Q("63 mm")))
sketch9.addConstraint(Sketcher.Constraint("DistanceY", 0, 2, -1, 1, Q("32.5 mm")))
sketch9.addConstraint(Sketcher.Constraint("DistanceX", 0, 2, 4, 3, Q("2.5 mm")))
sketch9.addConstraint(Sketcher.Constraint("DistanceX", 4, 3, -1, 1, Q("19.875 mm")))
pad4 = body2.newObject("PartDesign::Pad", "Pad003")
pad4.Profile = sketch9
pad4.Length = 2

doc.recompute()
